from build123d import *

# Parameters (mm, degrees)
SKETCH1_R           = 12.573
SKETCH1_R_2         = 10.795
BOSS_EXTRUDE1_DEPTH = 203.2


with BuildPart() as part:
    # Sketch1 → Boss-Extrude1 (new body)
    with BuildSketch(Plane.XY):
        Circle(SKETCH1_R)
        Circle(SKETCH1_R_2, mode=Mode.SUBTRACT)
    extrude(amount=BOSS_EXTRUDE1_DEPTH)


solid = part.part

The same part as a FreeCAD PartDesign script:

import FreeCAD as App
import Part
import Sketcher
Q = App.Units.Quantity

doc = App.newDocument("Part")
body = doc.addObject("PartDesign::Body", "Body")

sketch1 = body.newObject("Sketcher::SketchObject", "Sketch")
sketch1.AttachmentSupport = (doc.getObject("XY_Plane"), [""])
sketch1.MapMode = "FlatFace"
sketch1.addGeometry([
    Part.Circle(App.Vector(0, 0, 0), App.Vector(0, 0, 1), 13),
    Part.Circle(App.Vector(0, 0, 0), App.Vector(0, 0, 1), 11),
], False)
sketch1.addConstraint([
    Sketcher.Constraint("Coincident", 0, 3, -1, 1),
    Sketcher.Constraint("Coincident", 1, 3, -1, 1),
    Sketcher.Constraint("Diameter", 0, Q("0.99 in")),
    Sketcher.Constraint("Diameter", 1, Q("0.85 in")),
])
pad1 = body.newObject("PartDesign::Pad", "Pad")
pad1.Profile = sketch1
pad1.Length = Q("8 in")

doc.recompute()
